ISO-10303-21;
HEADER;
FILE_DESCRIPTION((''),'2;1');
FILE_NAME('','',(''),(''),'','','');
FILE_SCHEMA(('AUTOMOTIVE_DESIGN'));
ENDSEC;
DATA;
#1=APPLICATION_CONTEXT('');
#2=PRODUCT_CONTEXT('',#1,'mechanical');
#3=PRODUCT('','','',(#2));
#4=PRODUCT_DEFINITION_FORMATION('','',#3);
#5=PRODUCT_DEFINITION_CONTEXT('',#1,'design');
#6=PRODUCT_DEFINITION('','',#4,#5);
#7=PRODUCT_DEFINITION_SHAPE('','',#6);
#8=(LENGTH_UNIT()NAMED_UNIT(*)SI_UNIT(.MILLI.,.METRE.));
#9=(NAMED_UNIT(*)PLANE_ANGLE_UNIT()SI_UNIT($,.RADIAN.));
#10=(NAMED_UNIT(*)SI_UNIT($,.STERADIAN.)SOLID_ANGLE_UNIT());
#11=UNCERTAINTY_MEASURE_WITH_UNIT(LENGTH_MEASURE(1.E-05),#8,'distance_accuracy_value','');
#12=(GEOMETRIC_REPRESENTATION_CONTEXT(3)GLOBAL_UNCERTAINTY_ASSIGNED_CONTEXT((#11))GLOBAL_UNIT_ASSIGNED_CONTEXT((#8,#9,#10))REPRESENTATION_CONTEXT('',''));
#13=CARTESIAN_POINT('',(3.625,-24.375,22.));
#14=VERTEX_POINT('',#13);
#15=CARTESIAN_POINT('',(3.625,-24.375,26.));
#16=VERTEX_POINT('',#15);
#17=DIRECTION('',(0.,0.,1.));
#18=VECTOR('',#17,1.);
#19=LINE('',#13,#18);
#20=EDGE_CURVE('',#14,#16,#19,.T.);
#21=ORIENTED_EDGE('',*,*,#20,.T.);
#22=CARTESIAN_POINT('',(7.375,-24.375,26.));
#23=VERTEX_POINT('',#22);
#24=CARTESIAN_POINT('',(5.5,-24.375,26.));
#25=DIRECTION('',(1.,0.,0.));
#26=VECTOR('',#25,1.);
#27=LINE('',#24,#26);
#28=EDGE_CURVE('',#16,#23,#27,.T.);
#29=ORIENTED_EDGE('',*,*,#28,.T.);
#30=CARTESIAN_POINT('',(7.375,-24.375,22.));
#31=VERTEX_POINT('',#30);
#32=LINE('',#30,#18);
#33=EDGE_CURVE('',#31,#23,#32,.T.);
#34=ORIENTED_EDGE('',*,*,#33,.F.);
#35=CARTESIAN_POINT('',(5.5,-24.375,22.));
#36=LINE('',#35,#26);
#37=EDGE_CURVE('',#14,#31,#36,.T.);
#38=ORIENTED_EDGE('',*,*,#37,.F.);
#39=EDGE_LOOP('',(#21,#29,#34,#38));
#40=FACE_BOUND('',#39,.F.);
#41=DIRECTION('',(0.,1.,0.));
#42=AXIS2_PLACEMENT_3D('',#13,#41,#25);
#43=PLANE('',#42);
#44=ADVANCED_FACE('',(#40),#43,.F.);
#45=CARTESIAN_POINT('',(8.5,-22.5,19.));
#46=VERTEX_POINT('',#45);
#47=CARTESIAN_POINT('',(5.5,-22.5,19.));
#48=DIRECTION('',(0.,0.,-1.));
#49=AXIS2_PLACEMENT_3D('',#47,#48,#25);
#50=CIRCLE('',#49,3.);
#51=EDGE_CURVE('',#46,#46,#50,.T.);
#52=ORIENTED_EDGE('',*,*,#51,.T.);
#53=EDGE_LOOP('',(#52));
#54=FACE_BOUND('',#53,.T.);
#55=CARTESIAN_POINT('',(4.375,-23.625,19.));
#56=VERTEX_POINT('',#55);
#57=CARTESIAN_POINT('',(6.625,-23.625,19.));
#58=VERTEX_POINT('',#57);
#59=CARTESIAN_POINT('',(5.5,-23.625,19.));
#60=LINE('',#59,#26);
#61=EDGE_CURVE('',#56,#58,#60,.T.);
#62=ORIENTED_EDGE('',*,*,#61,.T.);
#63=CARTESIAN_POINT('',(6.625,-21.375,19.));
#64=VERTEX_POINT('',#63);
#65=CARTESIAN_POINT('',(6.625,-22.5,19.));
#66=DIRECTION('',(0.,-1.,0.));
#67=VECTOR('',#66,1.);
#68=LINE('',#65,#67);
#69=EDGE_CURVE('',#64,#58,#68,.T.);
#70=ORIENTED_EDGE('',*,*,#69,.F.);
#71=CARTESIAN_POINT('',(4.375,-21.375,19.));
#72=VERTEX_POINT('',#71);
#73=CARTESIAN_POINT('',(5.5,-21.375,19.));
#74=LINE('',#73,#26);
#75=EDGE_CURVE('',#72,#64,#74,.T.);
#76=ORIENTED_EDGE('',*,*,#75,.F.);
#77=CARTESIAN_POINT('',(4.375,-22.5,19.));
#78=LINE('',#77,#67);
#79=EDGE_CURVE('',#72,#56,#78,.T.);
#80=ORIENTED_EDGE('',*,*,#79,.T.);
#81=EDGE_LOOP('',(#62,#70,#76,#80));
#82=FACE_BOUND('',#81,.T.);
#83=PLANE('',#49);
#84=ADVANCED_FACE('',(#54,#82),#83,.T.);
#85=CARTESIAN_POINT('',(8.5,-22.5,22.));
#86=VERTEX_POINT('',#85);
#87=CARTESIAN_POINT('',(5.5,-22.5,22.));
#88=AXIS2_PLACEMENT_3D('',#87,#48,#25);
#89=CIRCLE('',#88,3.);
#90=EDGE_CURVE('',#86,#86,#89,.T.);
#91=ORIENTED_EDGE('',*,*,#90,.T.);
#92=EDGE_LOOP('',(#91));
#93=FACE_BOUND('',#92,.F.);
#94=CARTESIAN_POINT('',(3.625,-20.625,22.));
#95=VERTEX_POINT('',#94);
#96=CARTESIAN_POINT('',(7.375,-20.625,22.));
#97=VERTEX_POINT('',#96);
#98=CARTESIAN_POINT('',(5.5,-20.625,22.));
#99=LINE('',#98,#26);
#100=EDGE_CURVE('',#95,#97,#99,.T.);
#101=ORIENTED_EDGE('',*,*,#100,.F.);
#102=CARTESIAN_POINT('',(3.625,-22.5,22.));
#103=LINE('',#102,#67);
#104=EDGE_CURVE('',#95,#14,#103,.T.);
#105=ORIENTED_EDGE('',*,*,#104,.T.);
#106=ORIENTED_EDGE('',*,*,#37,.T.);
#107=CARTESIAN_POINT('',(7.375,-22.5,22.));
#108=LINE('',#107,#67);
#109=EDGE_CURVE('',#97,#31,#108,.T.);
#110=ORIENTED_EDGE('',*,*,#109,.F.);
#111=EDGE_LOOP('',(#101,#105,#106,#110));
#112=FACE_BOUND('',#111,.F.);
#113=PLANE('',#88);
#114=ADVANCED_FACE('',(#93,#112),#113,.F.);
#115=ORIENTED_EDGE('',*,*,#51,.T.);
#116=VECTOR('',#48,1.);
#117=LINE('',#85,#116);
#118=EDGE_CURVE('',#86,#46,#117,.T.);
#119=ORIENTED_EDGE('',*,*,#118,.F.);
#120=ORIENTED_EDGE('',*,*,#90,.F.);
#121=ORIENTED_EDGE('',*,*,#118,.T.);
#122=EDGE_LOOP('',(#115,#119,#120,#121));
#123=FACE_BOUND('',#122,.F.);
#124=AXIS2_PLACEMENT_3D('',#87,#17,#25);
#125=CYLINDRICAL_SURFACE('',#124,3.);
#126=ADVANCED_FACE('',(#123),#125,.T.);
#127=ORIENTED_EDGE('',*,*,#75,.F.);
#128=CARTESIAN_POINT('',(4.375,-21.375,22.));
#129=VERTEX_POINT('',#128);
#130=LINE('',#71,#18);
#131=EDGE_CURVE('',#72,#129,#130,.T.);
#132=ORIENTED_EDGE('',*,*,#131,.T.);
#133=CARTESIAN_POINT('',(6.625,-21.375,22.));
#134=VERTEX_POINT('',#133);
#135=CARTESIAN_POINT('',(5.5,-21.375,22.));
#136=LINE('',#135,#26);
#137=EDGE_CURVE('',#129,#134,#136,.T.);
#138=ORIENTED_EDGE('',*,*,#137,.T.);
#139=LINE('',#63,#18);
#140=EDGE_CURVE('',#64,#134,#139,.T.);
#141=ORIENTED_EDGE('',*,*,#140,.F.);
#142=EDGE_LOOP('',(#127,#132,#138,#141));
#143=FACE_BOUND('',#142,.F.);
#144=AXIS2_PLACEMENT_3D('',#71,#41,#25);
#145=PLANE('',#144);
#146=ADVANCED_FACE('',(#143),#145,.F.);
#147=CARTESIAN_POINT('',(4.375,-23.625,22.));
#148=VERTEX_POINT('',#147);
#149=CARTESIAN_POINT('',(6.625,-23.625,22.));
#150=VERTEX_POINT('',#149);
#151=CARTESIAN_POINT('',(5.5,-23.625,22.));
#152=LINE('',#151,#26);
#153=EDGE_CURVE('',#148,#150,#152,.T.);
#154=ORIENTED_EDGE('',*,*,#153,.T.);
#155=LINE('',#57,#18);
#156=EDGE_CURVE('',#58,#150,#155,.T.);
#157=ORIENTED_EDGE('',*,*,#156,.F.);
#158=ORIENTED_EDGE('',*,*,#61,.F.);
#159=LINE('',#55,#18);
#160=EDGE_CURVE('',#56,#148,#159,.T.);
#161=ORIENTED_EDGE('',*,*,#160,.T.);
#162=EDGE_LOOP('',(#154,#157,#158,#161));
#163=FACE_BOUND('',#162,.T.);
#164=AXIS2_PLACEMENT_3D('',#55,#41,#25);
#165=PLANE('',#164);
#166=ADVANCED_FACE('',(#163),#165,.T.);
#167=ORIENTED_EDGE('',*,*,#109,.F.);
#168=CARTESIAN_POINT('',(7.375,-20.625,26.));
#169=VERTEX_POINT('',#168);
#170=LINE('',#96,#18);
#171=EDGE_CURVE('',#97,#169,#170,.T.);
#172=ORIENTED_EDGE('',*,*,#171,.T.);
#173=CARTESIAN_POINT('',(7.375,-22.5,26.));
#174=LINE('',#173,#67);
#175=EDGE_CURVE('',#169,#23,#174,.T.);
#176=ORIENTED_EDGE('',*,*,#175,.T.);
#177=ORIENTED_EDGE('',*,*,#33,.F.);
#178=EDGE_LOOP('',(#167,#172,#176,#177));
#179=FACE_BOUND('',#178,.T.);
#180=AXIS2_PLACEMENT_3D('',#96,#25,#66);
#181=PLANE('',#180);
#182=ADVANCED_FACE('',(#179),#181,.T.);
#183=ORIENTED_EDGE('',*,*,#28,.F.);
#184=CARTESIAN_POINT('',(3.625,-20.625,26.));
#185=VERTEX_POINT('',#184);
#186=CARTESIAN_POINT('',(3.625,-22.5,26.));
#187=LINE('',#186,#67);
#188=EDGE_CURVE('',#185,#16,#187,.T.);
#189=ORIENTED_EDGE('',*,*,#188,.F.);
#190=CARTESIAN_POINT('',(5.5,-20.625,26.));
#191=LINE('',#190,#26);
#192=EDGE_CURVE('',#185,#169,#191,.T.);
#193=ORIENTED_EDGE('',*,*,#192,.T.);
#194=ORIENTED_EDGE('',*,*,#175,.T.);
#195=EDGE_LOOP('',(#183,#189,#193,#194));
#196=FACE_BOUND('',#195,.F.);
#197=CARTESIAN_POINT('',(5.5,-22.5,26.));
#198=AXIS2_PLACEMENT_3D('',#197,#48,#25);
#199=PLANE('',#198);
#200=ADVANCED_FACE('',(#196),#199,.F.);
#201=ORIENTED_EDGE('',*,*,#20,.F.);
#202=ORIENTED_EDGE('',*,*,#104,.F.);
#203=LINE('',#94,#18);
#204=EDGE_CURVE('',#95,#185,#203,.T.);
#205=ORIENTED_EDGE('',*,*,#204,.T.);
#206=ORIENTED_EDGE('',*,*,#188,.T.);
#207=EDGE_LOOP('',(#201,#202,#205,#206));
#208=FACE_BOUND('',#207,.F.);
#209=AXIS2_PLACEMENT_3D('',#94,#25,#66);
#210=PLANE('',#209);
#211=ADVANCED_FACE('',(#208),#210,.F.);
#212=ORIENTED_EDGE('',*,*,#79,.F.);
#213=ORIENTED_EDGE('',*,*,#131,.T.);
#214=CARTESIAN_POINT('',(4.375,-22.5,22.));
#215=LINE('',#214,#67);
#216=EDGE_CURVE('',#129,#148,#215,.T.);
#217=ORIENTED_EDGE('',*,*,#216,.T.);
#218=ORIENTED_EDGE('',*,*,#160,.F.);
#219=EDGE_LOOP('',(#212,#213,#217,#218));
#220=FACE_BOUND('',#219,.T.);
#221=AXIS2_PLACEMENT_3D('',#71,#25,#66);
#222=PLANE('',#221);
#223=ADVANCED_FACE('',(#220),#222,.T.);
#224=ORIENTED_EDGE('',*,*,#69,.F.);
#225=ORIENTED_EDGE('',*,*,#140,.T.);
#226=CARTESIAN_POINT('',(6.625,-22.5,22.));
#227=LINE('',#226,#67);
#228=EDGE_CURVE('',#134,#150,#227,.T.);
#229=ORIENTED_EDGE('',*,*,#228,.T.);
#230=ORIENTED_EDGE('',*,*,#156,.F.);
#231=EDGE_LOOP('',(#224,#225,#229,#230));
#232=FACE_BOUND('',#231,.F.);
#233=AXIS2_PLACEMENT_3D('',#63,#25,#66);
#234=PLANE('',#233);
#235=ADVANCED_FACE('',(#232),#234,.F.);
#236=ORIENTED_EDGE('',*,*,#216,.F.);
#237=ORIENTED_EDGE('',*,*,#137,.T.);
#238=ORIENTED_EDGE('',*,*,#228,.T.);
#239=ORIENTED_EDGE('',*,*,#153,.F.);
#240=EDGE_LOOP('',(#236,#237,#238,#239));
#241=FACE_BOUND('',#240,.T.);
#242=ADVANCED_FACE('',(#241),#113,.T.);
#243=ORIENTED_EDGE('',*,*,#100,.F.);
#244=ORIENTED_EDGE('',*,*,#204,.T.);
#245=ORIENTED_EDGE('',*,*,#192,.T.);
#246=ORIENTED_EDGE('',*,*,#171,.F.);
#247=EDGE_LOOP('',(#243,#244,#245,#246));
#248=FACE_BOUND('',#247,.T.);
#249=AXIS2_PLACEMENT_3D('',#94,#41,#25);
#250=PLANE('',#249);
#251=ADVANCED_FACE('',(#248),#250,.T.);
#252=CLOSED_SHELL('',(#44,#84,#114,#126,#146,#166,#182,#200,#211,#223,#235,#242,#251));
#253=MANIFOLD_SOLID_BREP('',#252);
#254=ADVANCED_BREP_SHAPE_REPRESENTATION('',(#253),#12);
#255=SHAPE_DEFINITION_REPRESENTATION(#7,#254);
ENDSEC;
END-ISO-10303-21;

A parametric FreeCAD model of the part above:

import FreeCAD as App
import Part
import Sketcher

V = App.Vector
Q = App.Units.Quantity

doc = App.newDocument("Part")
params = doc.addObject("Spreadsheet::Sheet", "Params")
for row, (alias, value) in enumerate([
    ("sketch1_width", "3.75 mm"),
    ("pad1_length", "4 mm"),
    ("sketch2_diameter", "6 mm"),
    ("pad2_length", "3 mm"),
    ("sketch3_width", "2.25 mm"),
    ("pocket1_length", "3 mm"),
], start=1):
    params.set(f"A{row}", alias)
    params.set(f"B{row}", "=" + value)
    params.setAlias(f"B{row}", alias)

body = doc.addObject("PartDesign::Body", "Body")

# Sketch on XY plane
sketch1 = body.newObject("Sketcher::SketchObject", "Sketch")
sketch1.AttachmentSupport = (doc.getObject("XY_Plane"), [""])
sketch1.MapMode = "FlatFace"
sketch1.AttachmentOffset = App.Placement(V(0, 0, 22), App.Rotation())
sketch1.addGeometry(Part.LineSegment(V(3.6, -24.4, 0), V(3.6, -20.6, 0)), False)
sketch1.addGeometry(Part.LineSegment(V(3.6, -20.6, 0), V(7.4, -20.6, 0)), False)
sketch1.addGeometry(Part.LineSegment(V(7.4, -20.6, 0), V(7.4, -24.4, 0)), False)
sketch1.addGeometry(Part.LineSegment(V(7.4, -24.4, 0), V(3.6, -24.4, 0)), False)
sketch1.addConstraint(Sketcher.Constraint("Coincident", 0, 2, 1, 1))
sketch1.addConstraint(Sketcher.Constraint("Coincident", 1, 2, 2, 1))
sketch1.addConstraint(Sketcher.Constraint("Coincident", 2, 2, 3, 1))
sketch1.addConstraint(Sketcher.Constraint("Coincident", 3, 2, 0, 1))
sketch1.addConstraint(Sketcher.Constraint("Vertical", 0))
sketch1.addConstraint(Sketcher.Constraint("Horizontal", 1))
sketch1.addConstraint(Sketcher.Constraint("Vertical", 2))
sketch1.addConstraint(Sketcher.Constraint("Horizontal", 3))
sketch1.addConstraint(Sketcher.Constraint("Equal", 3, 0))
sketch1.addConstraint(Sketcher.Constraint("DistanceX", 1, 1, 1, 2, Q("3.75 mm")))
sketch1.addConstraint(Sketcher.Constraint("DistanceX", -1, 1, 0, 2, Q("3.625 mm")))
sketch1.addConstraint(Sketcher.Constraint("DistanceY", 0, 2, -1, 1, Q("20.625 mm")))
sketch1.setExpression("Constraints[9]", "Params.sketch1_width")
pad1 = body.newObject("PartDesign::Pad", "Pad")
pad1.Profile = sketch1
pad1.setExpression("Length", "Params.pad1_length")

# Sketch on XY plane
sketch2 = body.newObject("Sketcher::SketchObject", "Sketch001")
sketch2.AttachmentSupport = (doc.getObject("XY_Plane"), [""])
sketch2.MapMode = "FlatFace"
sketch2.AttachmentOffset = App.Placement(V(0, 0, 22), App.Rotation())
sketch2.addGeometry(Part.Circle(V(5.5, -22.5, 0), V(0, 0, 1), 3), False)
sketch2.addConstraint(Sketcher.Constraint("Diameter", 0, Q("6 mm")))
sketch2.addConstraint(Sketcher.Constraint("DistanceX", -1, 1, 0, 3, Q("5.5 mm")))
sketch2.addConstraint(Sketcher.Constraint("DistanceY", 0, 3, -1, 1, Q("22.5 mm")))
sketch2.setExpression("Constraints[0]", "Params.sketch2_diameter")
pad2 = body.newObject("PartDesign::Pad", "Pad001")
pad2.Profile = sketch2
pad2.setExpression("Length", "Params.pad2_length")
pad2.Reversed = True

# Sketch on XY plane
sketch3 = body.newObject("Sketcher::SketchObject", "Sketch002")
sketch3.AttachmentSupport = (doc.getObject("XY_Plane"), [""])
sketch3.MapMode = "FlatFace"
sketch3.AttachmentOffset = App.Placement(V(0, 0, 19), App.Rotation())
sketch3.addGeometry(Part.LineSegment(V(4.4, -23.6, 0), V(4.4, -21.4, 0)), False)
sketch3.addGeometry(Part.LineSegment(V(4.4, -21.4, 0), V(6.6, -21.4, 0)), False)
sketch3.addGeometry(Part.LineSegment(V(6.6, -21.4, 0), V(6.6, -23.6, 0)), False)
sketch3.addGeometry(Part.LineSegment(V(6.6, -23.6, 0), V(4.4, -23.6, 0)), False)
sketch3.addConstraint(Sketcher.Constraint("Coincident", 0, 2, 1, 1))
sketch3.addConstraint(Sketcher.Constraint("Coincident", 1, 2, 2, 1))
sketch3.addConstraint(Sketcher.Constraint("Coincident", 2, 2, 3, 1))
sketch3.addConstraint(Sketcher.Constraint("Coincident", 3, 2, 0, 1))
sketch3.addConstraint(Sketcher.Constraint("Vertical", 0))
sketch3.addConstraint(Sketcher.Constraint("Horizontal", 1))
sketch3.addConstraint(Sketcher.Constraint("Vertical", 2))
sketch3.addConstraint(Sketcher.Constraint("Horizontal", 3))
sketch3.addConstraint(Sketcher.Constraint("Equal", 3, 0))
sketch3.addConstraint(Sketcher.Constraint("DistanceX", 1, 1, 1, 2, Q("2.25 mm")))
sketch3.addConstraint(Sketcher.Constraint("DistanceX", -1, 1, 0, 2, Q("4.375 mm")))
sketch3.addConstraint(Sketcher.Constraint("DistanceY", 0, 2, -1, 1, Q("21.375 mm")))
sketch3.setExpression("Constraints[9]", "Params.sketch3_width")
pocket1 = body.newObject("PartDesign::Pocket", "Pocket")
pocket1.Profile = sketch3
pocket1.setExpression("Length", "Params.pocket1_length")
pocket1.Reversed = True

doc.recompute()
